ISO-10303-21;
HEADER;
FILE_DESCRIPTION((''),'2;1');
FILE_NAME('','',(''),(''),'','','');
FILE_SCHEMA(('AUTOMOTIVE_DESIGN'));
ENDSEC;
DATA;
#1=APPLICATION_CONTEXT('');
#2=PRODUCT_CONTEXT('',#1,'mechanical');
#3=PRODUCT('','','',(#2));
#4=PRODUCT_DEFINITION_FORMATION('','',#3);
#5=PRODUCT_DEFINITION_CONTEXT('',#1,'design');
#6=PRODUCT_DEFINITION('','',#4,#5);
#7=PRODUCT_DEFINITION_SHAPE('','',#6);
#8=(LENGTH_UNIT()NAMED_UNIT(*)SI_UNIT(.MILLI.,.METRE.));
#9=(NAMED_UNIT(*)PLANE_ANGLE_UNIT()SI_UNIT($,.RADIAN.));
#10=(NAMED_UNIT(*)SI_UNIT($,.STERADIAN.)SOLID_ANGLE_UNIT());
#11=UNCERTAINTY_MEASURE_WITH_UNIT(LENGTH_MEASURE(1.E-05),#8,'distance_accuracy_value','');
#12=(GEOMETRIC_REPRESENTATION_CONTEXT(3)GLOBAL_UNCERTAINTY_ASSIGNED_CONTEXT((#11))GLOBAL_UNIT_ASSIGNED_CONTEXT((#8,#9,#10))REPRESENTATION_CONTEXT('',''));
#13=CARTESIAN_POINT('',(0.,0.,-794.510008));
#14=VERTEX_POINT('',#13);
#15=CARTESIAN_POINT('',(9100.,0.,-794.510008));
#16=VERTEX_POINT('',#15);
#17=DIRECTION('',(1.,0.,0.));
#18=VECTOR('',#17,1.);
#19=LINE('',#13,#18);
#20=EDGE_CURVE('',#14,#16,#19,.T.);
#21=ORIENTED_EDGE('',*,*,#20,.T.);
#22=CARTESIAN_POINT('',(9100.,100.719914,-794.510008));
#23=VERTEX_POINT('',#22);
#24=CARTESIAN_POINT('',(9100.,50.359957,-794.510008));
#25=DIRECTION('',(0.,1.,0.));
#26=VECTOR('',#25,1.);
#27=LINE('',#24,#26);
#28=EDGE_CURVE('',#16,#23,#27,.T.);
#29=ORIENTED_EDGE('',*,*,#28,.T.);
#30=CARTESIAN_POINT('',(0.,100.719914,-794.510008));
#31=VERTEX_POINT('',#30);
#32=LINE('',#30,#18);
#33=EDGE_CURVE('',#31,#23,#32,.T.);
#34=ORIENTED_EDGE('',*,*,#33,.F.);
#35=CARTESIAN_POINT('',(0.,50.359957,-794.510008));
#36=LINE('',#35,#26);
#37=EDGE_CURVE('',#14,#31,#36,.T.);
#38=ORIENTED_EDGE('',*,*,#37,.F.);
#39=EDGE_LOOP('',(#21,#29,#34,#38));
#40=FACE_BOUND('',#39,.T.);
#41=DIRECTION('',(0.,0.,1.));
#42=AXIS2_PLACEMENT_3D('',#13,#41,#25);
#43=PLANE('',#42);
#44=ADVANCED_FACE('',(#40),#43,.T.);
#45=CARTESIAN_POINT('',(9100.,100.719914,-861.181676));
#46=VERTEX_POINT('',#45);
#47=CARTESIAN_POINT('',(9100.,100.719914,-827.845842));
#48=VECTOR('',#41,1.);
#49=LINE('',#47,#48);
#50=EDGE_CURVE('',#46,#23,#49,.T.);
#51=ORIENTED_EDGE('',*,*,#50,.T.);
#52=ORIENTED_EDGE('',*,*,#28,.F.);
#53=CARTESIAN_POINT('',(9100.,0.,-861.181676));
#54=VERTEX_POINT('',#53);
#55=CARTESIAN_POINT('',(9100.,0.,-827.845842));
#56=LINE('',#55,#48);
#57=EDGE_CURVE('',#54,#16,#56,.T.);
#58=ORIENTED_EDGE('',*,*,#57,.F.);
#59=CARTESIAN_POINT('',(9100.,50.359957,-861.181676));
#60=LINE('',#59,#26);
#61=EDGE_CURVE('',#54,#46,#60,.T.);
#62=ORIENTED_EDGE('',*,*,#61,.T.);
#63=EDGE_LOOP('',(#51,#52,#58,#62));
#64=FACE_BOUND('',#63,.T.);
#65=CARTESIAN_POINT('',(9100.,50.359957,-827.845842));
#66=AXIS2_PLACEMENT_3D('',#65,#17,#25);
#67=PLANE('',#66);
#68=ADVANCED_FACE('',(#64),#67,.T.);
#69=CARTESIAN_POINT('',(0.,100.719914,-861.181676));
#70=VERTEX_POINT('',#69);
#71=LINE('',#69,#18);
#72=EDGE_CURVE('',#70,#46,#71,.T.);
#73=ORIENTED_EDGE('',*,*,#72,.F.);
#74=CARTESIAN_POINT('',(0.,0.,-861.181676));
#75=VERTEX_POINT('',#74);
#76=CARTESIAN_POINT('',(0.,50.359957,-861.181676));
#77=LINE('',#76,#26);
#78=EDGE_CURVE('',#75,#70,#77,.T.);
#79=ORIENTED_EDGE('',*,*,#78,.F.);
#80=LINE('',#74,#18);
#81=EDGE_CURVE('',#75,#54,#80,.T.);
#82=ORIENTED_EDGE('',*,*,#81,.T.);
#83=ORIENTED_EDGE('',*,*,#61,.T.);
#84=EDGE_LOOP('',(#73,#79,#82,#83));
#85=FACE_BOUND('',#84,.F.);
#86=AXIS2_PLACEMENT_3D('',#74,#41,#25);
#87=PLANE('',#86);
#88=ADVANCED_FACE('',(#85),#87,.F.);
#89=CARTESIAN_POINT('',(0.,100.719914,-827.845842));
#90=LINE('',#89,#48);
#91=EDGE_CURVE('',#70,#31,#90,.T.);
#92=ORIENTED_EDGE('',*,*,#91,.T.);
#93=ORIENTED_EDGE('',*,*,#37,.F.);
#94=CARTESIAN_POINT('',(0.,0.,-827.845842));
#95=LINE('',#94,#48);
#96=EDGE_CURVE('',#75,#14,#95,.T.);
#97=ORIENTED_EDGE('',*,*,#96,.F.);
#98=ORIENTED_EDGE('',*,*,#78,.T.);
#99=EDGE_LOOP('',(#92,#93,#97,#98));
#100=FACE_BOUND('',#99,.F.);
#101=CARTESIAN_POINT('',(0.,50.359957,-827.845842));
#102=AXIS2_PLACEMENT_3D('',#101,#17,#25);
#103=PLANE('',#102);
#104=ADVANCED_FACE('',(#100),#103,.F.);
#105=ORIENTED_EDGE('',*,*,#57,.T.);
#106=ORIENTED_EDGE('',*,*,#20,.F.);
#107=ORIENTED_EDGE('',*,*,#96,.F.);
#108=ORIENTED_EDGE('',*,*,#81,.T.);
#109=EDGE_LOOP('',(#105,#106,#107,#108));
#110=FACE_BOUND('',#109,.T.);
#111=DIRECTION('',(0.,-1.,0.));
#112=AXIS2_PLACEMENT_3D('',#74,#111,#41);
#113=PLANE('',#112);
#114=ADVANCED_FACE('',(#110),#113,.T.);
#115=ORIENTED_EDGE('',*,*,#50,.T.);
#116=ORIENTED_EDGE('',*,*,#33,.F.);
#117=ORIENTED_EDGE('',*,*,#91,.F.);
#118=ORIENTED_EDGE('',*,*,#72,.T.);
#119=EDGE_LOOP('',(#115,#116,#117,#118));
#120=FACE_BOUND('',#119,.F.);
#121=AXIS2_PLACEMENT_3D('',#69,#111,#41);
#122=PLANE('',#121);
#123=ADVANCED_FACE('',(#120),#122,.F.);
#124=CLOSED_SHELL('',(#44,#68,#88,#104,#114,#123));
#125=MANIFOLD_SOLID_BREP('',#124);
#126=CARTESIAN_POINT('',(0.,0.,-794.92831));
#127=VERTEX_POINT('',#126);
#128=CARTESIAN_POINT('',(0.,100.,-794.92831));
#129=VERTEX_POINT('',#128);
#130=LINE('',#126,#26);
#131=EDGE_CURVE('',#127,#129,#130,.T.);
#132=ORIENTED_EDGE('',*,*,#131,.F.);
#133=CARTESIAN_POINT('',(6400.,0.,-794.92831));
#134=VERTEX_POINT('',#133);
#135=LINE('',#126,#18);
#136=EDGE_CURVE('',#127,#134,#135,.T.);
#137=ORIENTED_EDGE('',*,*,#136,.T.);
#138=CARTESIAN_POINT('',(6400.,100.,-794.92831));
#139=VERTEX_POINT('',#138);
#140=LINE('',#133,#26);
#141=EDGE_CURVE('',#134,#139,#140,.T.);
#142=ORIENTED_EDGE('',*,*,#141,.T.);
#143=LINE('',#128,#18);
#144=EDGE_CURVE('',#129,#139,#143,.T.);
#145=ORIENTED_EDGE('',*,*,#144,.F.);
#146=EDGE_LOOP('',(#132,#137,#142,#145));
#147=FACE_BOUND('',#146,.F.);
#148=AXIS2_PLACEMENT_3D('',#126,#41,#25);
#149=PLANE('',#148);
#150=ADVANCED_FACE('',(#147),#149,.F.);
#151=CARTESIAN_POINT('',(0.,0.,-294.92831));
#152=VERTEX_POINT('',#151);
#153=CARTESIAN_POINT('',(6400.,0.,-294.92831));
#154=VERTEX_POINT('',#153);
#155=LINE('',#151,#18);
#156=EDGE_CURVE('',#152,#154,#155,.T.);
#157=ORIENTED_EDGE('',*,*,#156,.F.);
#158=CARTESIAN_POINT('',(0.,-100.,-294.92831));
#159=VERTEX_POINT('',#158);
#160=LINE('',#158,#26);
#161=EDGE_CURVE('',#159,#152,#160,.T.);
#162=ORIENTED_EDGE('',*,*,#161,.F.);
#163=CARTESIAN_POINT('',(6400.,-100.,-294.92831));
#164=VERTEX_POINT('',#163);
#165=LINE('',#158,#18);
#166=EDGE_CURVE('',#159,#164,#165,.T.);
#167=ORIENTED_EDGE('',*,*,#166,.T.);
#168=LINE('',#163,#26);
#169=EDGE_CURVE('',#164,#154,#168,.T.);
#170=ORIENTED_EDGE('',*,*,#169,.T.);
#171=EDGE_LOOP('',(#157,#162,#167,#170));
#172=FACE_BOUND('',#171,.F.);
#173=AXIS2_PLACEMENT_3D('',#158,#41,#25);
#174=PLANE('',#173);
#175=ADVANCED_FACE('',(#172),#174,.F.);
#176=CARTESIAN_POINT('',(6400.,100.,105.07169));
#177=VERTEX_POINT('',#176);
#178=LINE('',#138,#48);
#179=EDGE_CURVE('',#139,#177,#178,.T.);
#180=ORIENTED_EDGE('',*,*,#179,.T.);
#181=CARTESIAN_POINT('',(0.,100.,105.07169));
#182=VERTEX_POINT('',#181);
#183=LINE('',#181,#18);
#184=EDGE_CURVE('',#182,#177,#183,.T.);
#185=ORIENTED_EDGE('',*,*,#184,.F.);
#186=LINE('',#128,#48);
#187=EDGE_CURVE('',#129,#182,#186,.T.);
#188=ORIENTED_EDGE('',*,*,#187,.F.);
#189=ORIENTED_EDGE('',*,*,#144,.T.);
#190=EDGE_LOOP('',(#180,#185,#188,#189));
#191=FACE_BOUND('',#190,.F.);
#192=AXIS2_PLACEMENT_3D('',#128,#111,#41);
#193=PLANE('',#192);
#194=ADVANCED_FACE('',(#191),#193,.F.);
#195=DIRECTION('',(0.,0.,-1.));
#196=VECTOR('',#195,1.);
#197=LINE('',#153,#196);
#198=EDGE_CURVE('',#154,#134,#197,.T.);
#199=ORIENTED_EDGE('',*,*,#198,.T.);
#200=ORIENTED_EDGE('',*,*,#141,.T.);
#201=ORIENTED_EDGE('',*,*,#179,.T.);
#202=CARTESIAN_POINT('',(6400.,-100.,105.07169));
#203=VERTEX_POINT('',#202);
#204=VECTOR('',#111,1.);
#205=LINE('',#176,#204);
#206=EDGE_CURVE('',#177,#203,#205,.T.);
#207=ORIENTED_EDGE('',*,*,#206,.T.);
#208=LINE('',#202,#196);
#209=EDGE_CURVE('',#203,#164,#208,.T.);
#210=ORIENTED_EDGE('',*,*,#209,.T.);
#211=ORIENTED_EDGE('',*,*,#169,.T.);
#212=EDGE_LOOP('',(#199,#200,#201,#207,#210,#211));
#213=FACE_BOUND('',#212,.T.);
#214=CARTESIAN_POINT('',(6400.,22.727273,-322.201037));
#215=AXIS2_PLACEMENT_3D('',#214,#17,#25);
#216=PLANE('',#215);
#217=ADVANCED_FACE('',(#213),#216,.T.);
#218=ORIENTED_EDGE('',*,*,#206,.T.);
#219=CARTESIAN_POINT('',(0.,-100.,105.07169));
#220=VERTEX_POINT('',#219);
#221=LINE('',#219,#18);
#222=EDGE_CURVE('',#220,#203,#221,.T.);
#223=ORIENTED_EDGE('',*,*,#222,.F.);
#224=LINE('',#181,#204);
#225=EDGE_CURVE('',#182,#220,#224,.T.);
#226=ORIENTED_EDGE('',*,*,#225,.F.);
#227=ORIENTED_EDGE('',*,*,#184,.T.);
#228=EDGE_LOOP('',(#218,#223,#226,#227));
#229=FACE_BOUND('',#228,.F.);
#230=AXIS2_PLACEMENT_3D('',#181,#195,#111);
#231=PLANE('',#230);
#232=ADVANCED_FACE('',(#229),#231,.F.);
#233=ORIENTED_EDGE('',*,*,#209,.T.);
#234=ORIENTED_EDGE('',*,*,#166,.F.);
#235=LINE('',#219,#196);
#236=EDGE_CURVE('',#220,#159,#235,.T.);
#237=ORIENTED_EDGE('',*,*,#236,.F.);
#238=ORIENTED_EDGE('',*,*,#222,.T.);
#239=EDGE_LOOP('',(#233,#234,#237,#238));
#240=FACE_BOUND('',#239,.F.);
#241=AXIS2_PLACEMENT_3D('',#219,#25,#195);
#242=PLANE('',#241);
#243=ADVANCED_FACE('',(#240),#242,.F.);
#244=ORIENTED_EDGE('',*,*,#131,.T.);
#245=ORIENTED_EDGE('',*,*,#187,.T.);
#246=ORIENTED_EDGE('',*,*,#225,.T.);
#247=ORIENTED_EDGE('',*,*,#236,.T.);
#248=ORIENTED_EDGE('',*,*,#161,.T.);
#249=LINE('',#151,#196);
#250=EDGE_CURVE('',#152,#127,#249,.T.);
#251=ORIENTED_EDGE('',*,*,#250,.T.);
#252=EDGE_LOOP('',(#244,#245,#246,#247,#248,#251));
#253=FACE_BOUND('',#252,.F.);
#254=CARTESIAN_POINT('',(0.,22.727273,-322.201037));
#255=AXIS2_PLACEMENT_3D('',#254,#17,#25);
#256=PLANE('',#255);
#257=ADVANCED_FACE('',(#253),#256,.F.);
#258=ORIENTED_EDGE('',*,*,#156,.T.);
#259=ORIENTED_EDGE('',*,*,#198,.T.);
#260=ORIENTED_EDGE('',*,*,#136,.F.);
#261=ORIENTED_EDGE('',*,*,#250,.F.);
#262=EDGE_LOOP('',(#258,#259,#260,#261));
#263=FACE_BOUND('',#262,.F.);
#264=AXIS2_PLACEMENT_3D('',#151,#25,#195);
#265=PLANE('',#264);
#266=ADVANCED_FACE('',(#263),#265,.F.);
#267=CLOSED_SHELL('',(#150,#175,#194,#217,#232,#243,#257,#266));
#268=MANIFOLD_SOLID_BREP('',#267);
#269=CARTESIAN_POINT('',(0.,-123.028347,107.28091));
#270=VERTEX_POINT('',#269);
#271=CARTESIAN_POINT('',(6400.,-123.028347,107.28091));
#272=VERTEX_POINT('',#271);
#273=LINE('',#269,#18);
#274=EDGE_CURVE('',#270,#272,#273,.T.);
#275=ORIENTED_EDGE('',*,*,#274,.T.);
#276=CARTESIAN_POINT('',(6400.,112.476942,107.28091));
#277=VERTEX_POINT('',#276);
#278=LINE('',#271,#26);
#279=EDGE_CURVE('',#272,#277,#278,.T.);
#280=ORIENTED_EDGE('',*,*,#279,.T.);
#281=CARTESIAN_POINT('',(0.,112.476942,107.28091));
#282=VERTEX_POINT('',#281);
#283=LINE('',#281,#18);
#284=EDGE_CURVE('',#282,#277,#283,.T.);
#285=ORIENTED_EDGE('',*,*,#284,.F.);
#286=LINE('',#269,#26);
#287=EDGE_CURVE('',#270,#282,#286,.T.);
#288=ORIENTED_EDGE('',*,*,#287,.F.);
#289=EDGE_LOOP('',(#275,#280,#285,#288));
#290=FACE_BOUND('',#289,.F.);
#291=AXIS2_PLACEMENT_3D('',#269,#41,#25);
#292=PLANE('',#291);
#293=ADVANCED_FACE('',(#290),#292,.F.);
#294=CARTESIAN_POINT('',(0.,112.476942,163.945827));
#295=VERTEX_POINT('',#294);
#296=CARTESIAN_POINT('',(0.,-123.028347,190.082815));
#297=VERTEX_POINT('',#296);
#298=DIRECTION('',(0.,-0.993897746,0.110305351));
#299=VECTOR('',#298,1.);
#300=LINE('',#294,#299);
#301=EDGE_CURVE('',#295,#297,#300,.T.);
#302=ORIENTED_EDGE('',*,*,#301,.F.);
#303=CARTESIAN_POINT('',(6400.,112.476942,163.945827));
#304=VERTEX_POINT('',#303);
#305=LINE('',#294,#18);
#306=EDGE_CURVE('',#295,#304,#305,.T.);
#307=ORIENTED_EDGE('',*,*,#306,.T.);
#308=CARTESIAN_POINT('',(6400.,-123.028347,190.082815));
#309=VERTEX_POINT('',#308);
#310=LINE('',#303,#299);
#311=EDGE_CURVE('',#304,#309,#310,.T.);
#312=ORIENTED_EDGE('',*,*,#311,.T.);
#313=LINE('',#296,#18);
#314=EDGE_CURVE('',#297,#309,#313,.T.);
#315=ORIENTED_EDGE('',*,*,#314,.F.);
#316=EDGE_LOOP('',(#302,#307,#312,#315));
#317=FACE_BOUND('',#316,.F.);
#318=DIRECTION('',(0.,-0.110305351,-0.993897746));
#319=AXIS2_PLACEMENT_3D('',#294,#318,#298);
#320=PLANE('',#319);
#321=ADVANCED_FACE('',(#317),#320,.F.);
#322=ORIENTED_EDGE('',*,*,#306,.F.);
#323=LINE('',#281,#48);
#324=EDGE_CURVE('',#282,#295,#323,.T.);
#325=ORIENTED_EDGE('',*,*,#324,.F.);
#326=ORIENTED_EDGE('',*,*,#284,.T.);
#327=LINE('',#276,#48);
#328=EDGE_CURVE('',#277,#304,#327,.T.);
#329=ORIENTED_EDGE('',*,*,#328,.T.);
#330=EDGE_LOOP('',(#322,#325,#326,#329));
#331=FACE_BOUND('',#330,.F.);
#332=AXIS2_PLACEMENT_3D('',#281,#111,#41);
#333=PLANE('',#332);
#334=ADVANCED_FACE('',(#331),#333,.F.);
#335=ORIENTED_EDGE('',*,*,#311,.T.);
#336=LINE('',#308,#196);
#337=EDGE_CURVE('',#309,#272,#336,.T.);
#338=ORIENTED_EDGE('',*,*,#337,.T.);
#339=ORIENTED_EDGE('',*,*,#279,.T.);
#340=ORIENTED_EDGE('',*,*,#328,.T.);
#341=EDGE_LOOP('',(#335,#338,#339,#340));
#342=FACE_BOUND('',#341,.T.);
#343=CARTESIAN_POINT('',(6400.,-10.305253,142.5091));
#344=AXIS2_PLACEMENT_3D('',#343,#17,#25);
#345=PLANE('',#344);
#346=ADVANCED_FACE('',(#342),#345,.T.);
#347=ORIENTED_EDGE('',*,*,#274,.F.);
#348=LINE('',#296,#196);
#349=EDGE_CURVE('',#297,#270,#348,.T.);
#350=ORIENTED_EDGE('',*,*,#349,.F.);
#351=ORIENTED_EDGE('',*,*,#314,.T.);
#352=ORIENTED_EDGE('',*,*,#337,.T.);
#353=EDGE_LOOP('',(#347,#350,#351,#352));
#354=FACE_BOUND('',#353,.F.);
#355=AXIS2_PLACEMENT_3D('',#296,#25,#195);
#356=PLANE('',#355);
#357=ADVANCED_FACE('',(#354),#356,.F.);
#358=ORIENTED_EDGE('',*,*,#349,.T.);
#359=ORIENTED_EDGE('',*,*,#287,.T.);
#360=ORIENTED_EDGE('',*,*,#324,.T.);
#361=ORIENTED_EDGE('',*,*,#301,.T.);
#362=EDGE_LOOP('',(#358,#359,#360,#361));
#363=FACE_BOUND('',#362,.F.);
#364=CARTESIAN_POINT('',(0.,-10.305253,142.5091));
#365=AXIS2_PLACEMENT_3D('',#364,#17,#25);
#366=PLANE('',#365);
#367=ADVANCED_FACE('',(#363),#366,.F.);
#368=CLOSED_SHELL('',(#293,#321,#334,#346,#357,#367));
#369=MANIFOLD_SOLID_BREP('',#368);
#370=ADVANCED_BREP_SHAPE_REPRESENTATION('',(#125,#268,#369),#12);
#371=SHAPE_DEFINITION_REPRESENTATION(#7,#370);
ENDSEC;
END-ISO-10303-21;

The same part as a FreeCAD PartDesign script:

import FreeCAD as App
import Part
import Sketcher


def add_polygon(sketch, points):
    """Adds a closed chain of lines whose ends are joined by coincident constraints."""
    first, n = sketch.GeometryCount, len(points)
    for a, b in zip(points, points[1:] + points[:1]):
        sketch.addGeometry(Part.LineSegment(App.Vector(*a, 0), App.Vector(*b, 0)), False)
    for i in range(n):
        sketch.addConstraint(Sketcher.Constraint("Coincident", first + i, 2, first + (i + 1) % n, 1))

doc = App.newDocument("Part")
body = doc.addObject("PartDesign::Body", "Body")

# Sketch on YZ plane
sketch1 = body.newObject("Sketcher::SketchObject", "Sketch")
sketch1.AttachmentSupport = (doc.getObject("YZ_Plane"), [""])
sketch1.MapMode = "FlatFace"
add_polygon(sketch1, [(-100, 105), (-100, -295), (0, -295), (0, -795), (100, -795), (100, 105)])  # lines 0-5
sketch1.addConstraint([
    Sketcher.Constraint("Vertical", 0),
    Sketcher.Constraint("Horizontal", 1),
    Sketcher.Constraint("Vertical", 2),
    Sketcher.Constraint("Horizontal", 3),
    Sketcher.Constraint("Vertical", 4),
    Sketcher.Constraint("Horizontal", 5),
    Sketcher.Constraint("PointOnObject", 1, 2, -2),
    Sketcher.Constraint("Equal", 1, 3),
    Sketcher.Constraint("DistanceX", 1, 1, 1, 2, 100.0),
    Sketcher.Constraint("DistanceY", 0, 2, 0, 1, 400.0),
    Sketcher.Constraint("DistanceY", 2, 2, 2, 1, 500.0),
    Sketcher.Constraint("DistanceY", 0, 2, -1, 1, 294.92831),
])
pad1 = body.newObject("PartDesign::Pad", "Pad")
pad1.Profile = sketch1
pad1.Length = 6400
body2 = doc.addObject("PartDesign::Body", "Body001")

# Sketch on YZ plane
sketch2 = body2.newObject("Sketcher::SketchObject", "Sketch001")
sketch2.AttachmentSupport = (doc.getObject("YZ_Plane001"), [""])
sketch2.MapMode = "FlatFace"
add_polygon(sketch2, [(-123, 190), (-123, 107), (112, 107), (112, 164)])  # lines 0-3
sketch2.addConstraint([
    Sketcher.Constraint("Vertical", 0),
    Sketcher.Constraint("Horizontal", 1),
    Sketcher.Constraint("Vertical", 2),
    Sketcher.Constraint("DistanceX", 1, 1, 1, 2, 235.505289),
    Sketcher.Constraint("DistanceY", 0, 2, 0, 1, 82.801905),
    Sketcher.Constraint("DistanceY", 2, 1, 2, 2, 56.664917),
    Sketcher.Constraint("DistanceY", -1, 1, 0, 2, 107.28091),
    Sketcher.Constraint("DistanceX", -1, 1, 1, 2, 112.476942),
])
pad2 = body2.newObject("PartDesign::Pad", "Pad001")
pad2.Profile = sketch2
pad2.Length = 6400
body3 = doc.addObject("PartDesign::Body", "Body002")

# Sketch on YZ plane
sketch3 = body3.newObject("Sketcher::SketchObject", "Sketch002")
sketch3.AttachmentSupport = (doc.getObject("YZ_Plane002"), [""])
sketch3.MapMode = "FlatFace"
add_polygon(sketch3, [(0, -795), (0, -861), (101, -861), (101, -795)])  # lines 0-3
sketch3.addConstraint([
    Sketcher.Constraint("Vertical", 0),
    Sketcher.Constraint("Horizontal", 1),
    Sketcher.Constraint("Vertical", 2),
    Sketcher.Constraint("Horizontal", 3),
    Sketcher.Constraint("PointOnObject", 0, 2, -2),
    Sketcher.Constraint("DistanceY", 0, 2, 0, 1, 66.671669),
    Sketcher.Constraint("DistanceX", 1, 1, 1, 2, 100.719914),
    Sketcher.Constraint("DistanceY", 0, 2, -1, 1, 861.181676),
])
pad3 = body3.newObject("PartDesign::Pad", "Pad002")
pad3.Profile = sketch3
pad3.Length = 9100

doc.recompute()
